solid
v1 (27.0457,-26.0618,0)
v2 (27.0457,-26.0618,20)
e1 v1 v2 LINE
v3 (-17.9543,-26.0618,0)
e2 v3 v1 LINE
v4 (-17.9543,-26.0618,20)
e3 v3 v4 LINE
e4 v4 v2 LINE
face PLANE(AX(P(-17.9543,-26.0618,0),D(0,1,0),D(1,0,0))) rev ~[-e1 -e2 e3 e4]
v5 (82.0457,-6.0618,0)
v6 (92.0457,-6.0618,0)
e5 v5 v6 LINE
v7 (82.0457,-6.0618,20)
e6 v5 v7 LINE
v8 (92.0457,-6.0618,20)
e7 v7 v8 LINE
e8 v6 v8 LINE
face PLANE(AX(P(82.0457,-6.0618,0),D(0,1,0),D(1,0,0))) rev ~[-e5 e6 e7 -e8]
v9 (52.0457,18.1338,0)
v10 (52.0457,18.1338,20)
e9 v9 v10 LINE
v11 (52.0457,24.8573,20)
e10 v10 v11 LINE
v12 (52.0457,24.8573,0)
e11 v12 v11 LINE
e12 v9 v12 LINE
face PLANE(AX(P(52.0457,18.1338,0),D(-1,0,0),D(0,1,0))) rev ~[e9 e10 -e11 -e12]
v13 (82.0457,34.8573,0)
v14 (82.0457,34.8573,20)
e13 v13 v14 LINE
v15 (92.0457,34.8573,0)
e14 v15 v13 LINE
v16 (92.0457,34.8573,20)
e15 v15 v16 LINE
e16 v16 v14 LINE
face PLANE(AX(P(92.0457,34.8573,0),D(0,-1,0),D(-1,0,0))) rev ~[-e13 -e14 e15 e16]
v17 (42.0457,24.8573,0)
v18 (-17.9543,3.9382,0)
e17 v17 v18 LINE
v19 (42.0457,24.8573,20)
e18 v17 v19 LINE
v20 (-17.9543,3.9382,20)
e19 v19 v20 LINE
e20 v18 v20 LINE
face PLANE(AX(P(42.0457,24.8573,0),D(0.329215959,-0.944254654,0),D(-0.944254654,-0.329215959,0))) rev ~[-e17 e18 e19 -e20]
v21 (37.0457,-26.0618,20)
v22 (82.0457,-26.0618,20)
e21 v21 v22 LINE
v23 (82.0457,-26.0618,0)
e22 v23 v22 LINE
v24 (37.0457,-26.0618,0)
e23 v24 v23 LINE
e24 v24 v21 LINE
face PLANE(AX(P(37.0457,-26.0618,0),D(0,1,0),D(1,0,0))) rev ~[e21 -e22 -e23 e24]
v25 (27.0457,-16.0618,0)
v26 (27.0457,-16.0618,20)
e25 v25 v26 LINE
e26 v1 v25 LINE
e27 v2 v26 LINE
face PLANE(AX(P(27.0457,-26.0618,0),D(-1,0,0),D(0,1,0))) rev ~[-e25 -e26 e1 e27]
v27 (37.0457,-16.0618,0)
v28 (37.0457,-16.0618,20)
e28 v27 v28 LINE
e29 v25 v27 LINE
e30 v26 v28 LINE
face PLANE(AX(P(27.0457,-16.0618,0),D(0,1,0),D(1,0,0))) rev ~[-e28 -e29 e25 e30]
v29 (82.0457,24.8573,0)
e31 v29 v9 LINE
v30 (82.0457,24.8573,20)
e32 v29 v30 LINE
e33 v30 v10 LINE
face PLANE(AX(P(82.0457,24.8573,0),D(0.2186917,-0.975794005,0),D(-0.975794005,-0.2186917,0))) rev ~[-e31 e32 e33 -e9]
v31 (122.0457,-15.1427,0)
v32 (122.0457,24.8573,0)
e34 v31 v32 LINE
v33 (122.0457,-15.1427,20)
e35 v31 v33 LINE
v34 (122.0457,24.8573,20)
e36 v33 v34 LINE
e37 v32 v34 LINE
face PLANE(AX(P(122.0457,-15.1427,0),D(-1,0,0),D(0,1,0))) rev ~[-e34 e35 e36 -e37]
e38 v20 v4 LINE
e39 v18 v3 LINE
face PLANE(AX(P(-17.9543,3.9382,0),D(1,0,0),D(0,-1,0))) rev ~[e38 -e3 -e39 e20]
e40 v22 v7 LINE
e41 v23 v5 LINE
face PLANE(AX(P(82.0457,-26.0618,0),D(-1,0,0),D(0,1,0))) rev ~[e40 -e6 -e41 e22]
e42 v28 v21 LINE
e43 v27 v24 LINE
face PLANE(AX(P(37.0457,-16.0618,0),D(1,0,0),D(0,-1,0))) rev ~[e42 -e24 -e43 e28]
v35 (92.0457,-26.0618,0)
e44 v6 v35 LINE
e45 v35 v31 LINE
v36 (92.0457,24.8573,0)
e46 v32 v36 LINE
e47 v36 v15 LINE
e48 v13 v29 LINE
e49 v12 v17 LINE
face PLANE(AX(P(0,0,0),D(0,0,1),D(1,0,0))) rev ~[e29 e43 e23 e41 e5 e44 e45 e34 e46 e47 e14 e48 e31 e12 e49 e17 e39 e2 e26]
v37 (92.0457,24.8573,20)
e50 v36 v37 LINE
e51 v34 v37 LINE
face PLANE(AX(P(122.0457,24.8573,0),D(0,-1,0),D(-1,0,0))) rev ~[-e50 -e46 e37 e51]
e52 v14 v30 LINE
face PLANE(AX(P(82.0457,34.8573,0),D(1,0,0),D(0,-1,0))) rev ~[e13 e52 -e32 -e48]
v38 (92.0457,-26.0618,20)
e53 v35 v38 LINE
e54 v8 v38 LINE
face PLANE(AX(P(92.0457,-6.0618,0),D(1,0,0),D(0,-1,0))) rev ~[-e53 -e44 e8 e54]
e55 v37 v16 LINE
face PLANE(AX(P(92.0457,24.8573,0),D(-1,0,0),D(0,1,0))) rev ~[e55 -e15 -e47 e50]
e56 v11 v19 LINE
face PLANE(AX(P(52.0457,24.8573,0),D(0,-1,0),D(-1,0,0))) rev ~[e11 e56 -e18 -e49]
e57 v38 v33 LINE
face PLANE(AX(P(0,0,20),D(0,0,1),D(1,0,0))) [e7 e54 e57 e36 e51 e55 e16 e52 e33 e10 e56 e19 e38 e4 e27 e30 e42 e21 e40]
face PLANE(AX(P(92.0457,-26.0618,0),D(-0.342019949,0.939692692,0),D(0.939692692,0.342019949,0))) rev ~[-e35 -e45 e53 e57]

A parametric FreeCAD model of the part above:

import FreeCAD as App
import Part
import Sketcher

V = App.Vector
Q = App.Units.Quantity

doc = App.newDocument("Part")
params = doc.addObject("Spreadsheet::Sheet", "Params")
for row, (alias, value) in enumerate([
    ("sketch1_width", "45 mm"),
    ("sketch1_width2", "10 mm"),
    ("sketch1_width3", "30 mm"),
    ("sketch1_height", "20 mm"),
    ("sketch1_height2", "40 mm"),
    ("pad1_length", "20 mm"),
], start=1):
    params.set(f"A{row}", alias)
    params.set(f"B{row}", "=" + value)
    params.setAlias(f"B{row}", alias)

body = doc.addObject("PartDesign::Body", "Body")

# Sketch on XY plane
sketch1 = doc.addObject("Sketcher::SketchObject", "Sketch")
body.addObject(sketch1)
sketch1.AttachmentSupport = (doc.XY_Plane, [""])
sketch1.MapMode = "FlatFace"
sketch1.addGeometry([
    Part.LineSegment(V(42, 25, 0), V(-18, 4, 0)),  # 0
    Part.LineSegment(V(-18, 4, 0), V(-18, -26, 0)),  # 1
    Part.LineSegment(V(-18, -26, 0), V(27, -26, 0)),  # 2
    Part.LineSegment(V(27, -26, 0), V(27, -16, 0)),  # 3
    Part.LineSegment(V(27, -16, 0), V(37, -16, 0)),  # 4
    Part.LineSegment(V(37, -16, 0), V(37, -26, 0)),  # 5
    Part.LineSegment(V(37, -26, 0), V(82, -26, 0)),  # 6
    Part.LineSegment(V(82, -26, 0), V(82, -6, 0)),  # 7
    Part.LineSegment(V(82, -6, 0), V(92, -6, 0)),  # 8
    Part.LineSegment(V(92, -6, 0), V(92, -26, 0)),  # 9
    Part.LineSegment(V(92, -26, 0), V(122, -15, 0)),  # 10
    Part.LineSegment(V(122, -15, 0), V(122, 25, 0)),  # 11
    Part.LineSegment(V(122, 25, 0), V(92, 25, 0)),  # 12
    Part.LineSegment(V(92, 25, 0), V(92, 35, 0)),  # 13
    Part.LineSegment(V(92, 35, 0), V(82, 35, 0)),  # 14
    Part.LineSegment(V(82, 35, 0), V(82, 25, 0)),  # 15
    Part.LineSegment(V(82, 25, 0), V(52, 18, 0)),  # 16
    Part.LineSegment(V(52, 18, 0), V(52, 25, 0)),  # 17
    Part.LineSegment(V(52, 25, 0), V(42, 25, 0)),  # 18
], False)
sketch1.addConstraint([
    Sketcher.Constraint("Coincident", 0, 2, 1, 1),
    Sketcher.Constraint("Coincident", 1, 2, 2, 1),
    Sketcher.Constraint("Coincident", 2, 2, 3, 1),
    Sketcher.Constraint("Coincident", 3, 2, 4, 1),
    Sketcher.Constraint("Coincident", 4, 2, 5, 1),
    Sketcher.Constraint("Coincident", 5, 2, 6, 1),
    Sketcher.Constraint("Coincident", 6, 2, 7, 1),
    Sketcher.Constraint("Coincident", 7, 2, 8, 1),
    Sketcher.Constraint("Coincident", 8, 2, 9, 1),
    Sketcher.Constraint("Coincident", 9, 2, 10, 1),
    Sketcher.Constraint("Coincident", 10, 2, 11, 1),
    Sketcher.Constraint("Coincident", 11, 2, 12, 1),
    Sketcher.Constraint("Coincident", 12, 2, 13, 1),
    Sketcher.Constraint("Coincident", 13, 2, 14, 1),
    Sketcher.Constraint("Coincident", 14, 2, 15, 1),
    Sketcher.Constraint("Coincident", 15, 2, 16, 1),
    Sketcher.Constraint("Coincident", 16, 2, 17, 1),
    Sketcher.Constraint("Coincident", 17, 2, 18, 1),
    Sketcher.Constraint("Coincident", 18, 2, 0, 1),
    Sketcher.Constraint("Vertical", 1),
    Sketcher.Constraint("Horizontal", 2),
    Sketcher.Constraint("Vertical", 3),
    Sketcher.Constraint("Horizontal", 4),
    Sketcher.Constraint("Vertical", 5),
    Sketcher.Constraint("Horizontal", 6),
    Sketcher.Constraint("Vertical", 7),
    Sketcher.Constraint("Horizontal", 8),
    Sketcher.Constraint("Vertical", 9),
    Sketcher.Constraint("Vertical", 11),
    Sketcher.Constraint("Horizontal", 12),
    Sketcher.Constraint("Vertical", 13),
    Sketcher.Constraint("Horizontal", 14),
    Sketcher.Constraint("Vertical", 15),
    Sketcher.Constraint("Vertical", 17),
    Sketcher.Constraint("Horizontal", 18),
    Sketcher.Constraint("Horizontal", 2, 2, 5, 2),
    Sketcher.Constraint("Horizontal", 6, 2, 9, 2),
    Sketcher.Constraint("Horizontal", 12, 2, 15, 2),
    Sketcher.Constraint("Horizontal", 15, 2, 17, 2),
    Sketcher.Constraint("Vertical", 9, 2, 12, 2),
    Sketcher.Constraint("Vertical", 7, 2, 14, 2),
    Sketcher.Constraint("Equal", 2, 6),
    Sketcher.Constraint("Equal", 4, 8),
    Sketcher.Constraint("Equal", 14, 18),
    Sketcher.Constraint("Equal", 12, 1),
    Sketcher.Constraint("Equal", 18, 3),
    Sketcher.Constraint("Equal", 5, 13),
    Sketcher.Constraint("DistanceX", 2, 1, 2, 2, Q("45 mm")),
    Sketcher.Constraint("DistanceX", 4, 1, 4, 2, Q("10 mm")),
    Sketcher.Constraint("DistanceX", 12, 2, 12, 1, Q("30 mm")),
    Sketcher.Constraint("DistanceY", 7, 1, 7, 2, Q("20 mm")),
    Sketcher.Constraint("DistanceY", 11, 1, 11, 2, Q("40 mm")),
    Sketcher.Constraint("Angle", 10, Q("20 deg")),
    Sketcher.Constraint("DistanceX", 16, 2, 15, 2, Q("30 mm")),
    Sketcher.Constraint("DistanceY", 17, 1, 17, 2, Q("6.7235 mm")),
    Sketcher.Constraint("DistanceX", 0, 2, -1, 1, Q("17.9543 mm")),
    Sketcher.Constraint("DistanceY", -1, 1, 0, 2, Q("3.9382 mm")),
])
sketch1.setExpression("Constraints[47]", "Params.sketch1_width")
sketch1.setExpression("Constraints[48]", "Params.sketch1_width2")
sketch1.setExpression("Constraints[49]", "Params.sketch1_width3")
sketch1.setExpression("Constraints[50]", "Params.sketch1_height")
sketch1.setExpression("Constraints[51]", "Params.sketch1_height2")
pad1 = doc.addObject("PartDesign::Pad", "Pad")
body.addObject(pad1)
pad1.Profile = sketch1
pad1.setExpression("Length", "Params.pad1_length")

doc.recompute()
